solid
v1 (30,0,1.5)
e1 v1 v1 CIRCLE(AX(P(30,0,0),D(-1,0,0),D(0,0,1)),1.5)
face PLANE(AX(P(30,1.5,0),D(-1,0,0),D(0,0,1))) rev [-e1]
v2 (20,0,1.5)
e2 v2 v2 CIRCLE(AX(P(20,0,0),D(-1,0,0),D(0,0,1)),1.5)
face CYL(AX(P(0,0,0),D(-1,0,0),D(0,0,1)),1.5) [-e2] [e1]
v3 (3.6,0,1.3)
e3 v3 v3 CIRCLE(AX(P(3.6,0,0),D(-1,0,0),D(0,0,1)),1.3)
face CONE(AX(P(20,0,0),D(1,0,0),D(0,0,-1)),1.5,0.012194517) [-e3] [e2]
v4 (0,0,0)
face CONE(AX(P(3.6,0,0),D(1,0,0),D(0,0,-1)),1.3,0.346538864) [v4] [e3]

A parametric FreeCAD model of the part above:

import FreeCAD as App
import Part
import Sketcher

V = App.Vector
Q = App.Units.Quantity

doc = App.newDocument("Part")
body = doc.addObject("PartDesign::Body", "Body")

# Sketch on XY plane
sketch1 = body.newObject("Sketcher::SketchObject", "Sketch")
sketch1.AttachmentSupport = (doc.getObject("XY_Plane"), [""])
sketch1.MapMode = "FlatFace"
sketch1.addGeometry(Part.LineSegment(V(0, 0, 0), V(30, 0, 0)), False)
sketch1.addGeometry(Part.LineSegment(V(30, 0, 0), V(30, 1.5, 0)), False)
sketch1.addGeometry(Part.LineSegment(V(30, 1.5, 0), V(20, 1.5, 0)), False)
sketch1.addGeometry(Part.LineSegment(V(20, 1.5, 0), V(3.6, 1.3, 0)), False)
sketch1.addGeometry(Part.LineSegment(V(3.6, 1.3, 0), V(0, 0, 0)), False)
sketch1.addConstraint(Sketcher.Constraint("Coincident", 0, 2, 1, 1))
sketch1.addConstraint(Sketcher.Constraint("Coincident", 1, 2, 2, 1))
sketch1.addConstraint(Sketcher.Constraint("Coincident", 2, 2, 3, 1))
sketch1.addConstraint(Sketcher.Constraint("Coincident", 3, 2, 4, 1))
sketch1.addConstraint(Sketcher.Constraint("Coincident", 4, 2, 0, 1))
sketch1.addConstraint(Sketcher.Constraint("Horizontal", 0))
sketch1.addConstraint(Sketcher.Constraint("Vertical", 1))
sketch1.addConstraint(Sketcher.Constraint("Horizontal", 2))
sketch1.addConstraint(Sketcher.Constraint("Coincident", 4, 2, -1, 1))
sketch1.addConstraint(Sketcher.Constraint("DistanceX", 0, 1, 0, 2, Q("30 mm")))
sketch1.addConstraint(Sketcher.Constraint("DistanceX", 2, 2, 2, 1, Q("10 mm")))
sketch1.addConstraint(Sketcher.Constraint("DistanceY", 1, 1, 1, 2, Q("1.5 mm")))
sketch1.addConstraint(Sketcher.Constraint("DistanceX", -1, 1, 3, 2, Q("3.6 mm")))
sketch1.addConstraint(Sketcher.Constraint("DistanceY", -1, 1, 3, 2, Q("1.3 mm")))
revolution = body.newObject("PartDesign::Revolution", "Revolution")
revolution.Profile = sketch1
revolution.ReferenceAxis = (sketch1, ["H_Axis"])
revolution.Angle = 360

doc.recompute()
